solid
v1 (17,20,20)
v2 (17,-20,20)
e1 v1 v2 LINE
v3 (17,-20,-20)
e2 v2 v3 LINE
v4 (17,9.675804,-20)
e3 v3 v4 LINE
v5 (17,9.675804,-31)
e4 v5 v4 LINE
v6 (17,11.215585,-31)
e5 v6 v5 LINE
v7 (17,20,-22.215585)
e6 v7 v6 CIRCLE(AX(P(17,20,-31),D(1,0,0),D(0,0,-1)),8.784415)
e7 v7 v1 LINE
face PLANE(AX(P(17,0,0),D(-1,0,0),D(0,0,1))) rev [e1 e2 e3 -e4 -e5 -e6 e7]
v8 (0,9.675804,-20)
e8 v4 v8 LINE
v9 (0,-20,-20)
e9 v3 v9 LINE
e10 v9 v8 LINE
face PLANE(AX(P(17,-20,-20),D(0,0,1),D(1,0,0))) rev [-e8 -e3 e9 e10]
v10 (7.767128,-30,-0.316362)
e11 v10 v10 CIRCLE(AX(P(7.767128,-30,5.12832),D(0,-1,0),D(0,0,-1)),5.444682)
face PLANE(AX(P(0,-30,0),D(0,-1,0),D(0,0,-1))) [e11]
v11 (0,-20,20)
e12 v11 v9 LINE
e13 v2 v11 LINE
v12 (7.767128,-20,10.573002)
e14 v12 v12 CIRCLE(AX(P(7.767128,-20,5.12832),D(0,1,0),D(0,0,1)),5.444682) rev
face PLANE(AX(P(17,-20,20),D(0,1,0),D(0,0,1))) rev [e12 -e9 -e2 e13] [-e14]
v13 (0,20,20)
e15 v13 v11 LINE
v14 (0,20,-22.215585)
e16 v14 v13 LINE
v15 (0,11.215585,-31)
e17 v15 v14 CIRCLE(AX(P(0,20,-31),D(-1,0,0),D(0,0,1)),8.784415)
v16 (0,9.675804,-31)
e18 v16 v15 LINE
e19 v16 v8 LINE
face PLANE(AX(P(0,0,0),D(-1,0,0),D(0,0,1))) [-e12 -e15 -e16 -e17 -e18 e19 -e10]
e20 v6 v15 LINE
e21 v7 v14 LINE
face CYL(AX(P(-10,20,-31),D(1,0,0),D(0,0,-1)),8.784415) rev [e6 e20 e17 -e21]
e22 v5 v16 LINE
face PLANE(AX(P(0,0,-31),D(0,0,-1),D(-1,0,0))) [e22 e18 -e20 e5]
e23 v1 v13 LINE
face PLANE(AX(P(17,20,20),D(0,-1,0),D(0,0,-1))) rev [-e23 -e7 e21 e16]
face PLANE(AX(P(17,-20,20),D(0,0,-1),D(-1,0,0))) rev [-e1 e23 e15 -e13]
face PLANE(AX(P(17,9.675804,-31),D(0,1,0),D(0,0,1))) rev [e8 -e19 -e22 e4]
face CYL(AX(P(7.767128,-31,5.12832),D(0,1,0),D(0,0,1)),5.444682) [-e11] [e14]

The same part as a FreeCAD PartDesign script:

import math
import FreeCAD as App
import Part
import Sketcher

V = App.Vector
Q = App.Units.Quantity

doc = App.newDocument("Part")
body = doc.addObject("PartDesign::Body", "Body")

sketch1 = doc.addObject("Sketcher::SketchObject", "Sketch")
body.addObject(sketch1)
sketch1.AttachmentSupport = (doc.YZ_Plane, [""])
sketch1.MapMode = "FlatFace"
sketch1.addGeometry(Part.LineSegment(V(20, 20, 0), V(-20, 20, 0)), False)
sketch1.addGeometry(Part.LineSegment(V(-20, 20, 0), V(-20, -20, 0)), False)
sketch1.addGeometry(Part.LineSegment(V(-20, -20, 0), V(20, -20, 0)), False)
sketch1.addGeometry(Part.LineSegment(V(20, -20, 0), V(20, 20, 0)), False)
sketch1.addConstraint(Sketcher.Constraint("Coincident", 0, 2, 1, 1))
sketch1.addConstraint(Sketcher.Constraint("Coincident", 1, 2, 2, 1))
sketch1.addConstraint(Sketcher.Constraint("Coincident", 2, 2, 3, 1))
sketch1.addConstraint(Sketcher.Constraint("Coincident", 3, 2, 0, 1))
sketch1.addConstraint(Sketcher.Constraint("Horizontal", 0))
sketch1.addConstraint(Sketcher.Constraint("Vertical", 1))
sketch1.addConstraint(Sketcher.Constraint("Horizontal", 2))
sketch1.addConstraint(Sketcher.Constraint("Vertical", 3))
sketch1.addConstraint(Sketcher.Constraint("Symmetric", 0, 2, 2, 2, -1, 1))
sketch1.addConstraint(Sketcher.Constraint("Equal", 2, 1))
sketch1.addConstraint(Sketcher.Constraint("DistanceX", 0, 2, 0, 1, Q("40 mm")))
pad1 = doc.addObject("PartDesign::Pad", "Pad")
body.addObject(pad1)
pad1.Profile = sketch1
pad1.Length = 17

sketch2 = doc.addObject("Sketcher::SketchObject", "Sketch001")
body.addObject(sketch2)
sketch2.AttachmentSupport = (doc.YZ_Plane, [""])
sketch2.MapMode = "FlatFace"
sketch2.AttachmentOffset = App.Placement(V(0, 0, 17), App.Rotation())
sketch2.addGeometry(Part.LineSegment(V(20, 20, 0), V(-20, 20, 0)), False)
sketch2.addGeometry(Part.LineSegment(V(-20, 20, 0), V(-20, -20, 0)), False)
sketch2.addGeometry(Part.LineSegment(V(-20, -20, 0), V(20, -20, 0)), False)
sketch2.addGeometry(Part.LineSegment(V(20, -20, 0), V(20, 20, 0)), False)
sketch2.addConstraint(Sketcher.Constraint("Coincident", 0, 2, 1, 1))
sketch2.addConstraint(Sketcher.Constraint("Coincident", 1, 2, 2, 1))
sketch2.addConstraint(Sketcher.Constraint("Coincident", 2, 2, 3, 1))
sketch2.addConstraint(Sketcher.Constraint("Coincident", 3, 2, 0, 1))
sketch2.addConstraint(Sketcher.Constraint("Horizontal", 0))
sketch2.addConstraint(Sketcher.Constraint("Vertical", 1))
sketch2.addConstraint(Sketcher.Constraint("Horizontal", 2))
sketch2.addConstraint(Sketcher.Constraint("Vertical", 3))
sketch2.addConstraint(Sketcher.Constraint("Symmetric", 0, 2, 2, 2, -1, 1))
sketch2.addConstraint(Sketcher.Constraint("Equal", 2, 1))
sketch2.addConstraint(Sketcher.Constraint("DistanceX", 0, 2, 0, 1, Q("39 mm")))
pad2 = doc.addObject("PartDesign::Pad", "Pad001")
body.addObject(pad2)
pad2.Profile = sketch2
pad2.Length = 11

sketch3 = doc.addObject("Sketcher::SketchObject", "Sketch002")
body.addObject(sketch3)
sketch3.AttachmentSupport = (doc.YZ_Plane, [""])
sketch3.MapMode = "FlatFace"
sketch3.AttachmentOffset = App.Placement(V(0, 0, 28), App.Rotation())
sketch3.addGeometry(Part.LineSegment(V(19.5, 17, 0), V(-19.5, 17, 0)), False)
sketch3.addGeometry(Part.LineSegment(V(-19.5, 17, 0), V(-19.5, 15, 0)), False)
sketch3.addGeometry(Part.LineSegment(V(-19.5, 15, 0), V(19.5, 15, 0)), False)
sketch3.addGeometry(Part.LineSegment(V(19.5, 15, 0), V(19.5, 17, 0)), False)
sketch3.addGeometry(Part.LineSegment(V(19.5, 13, 0), V(-19.5, 13, 0)), False)
sketch3.addGeometry(Part.LineSegment(V(-19.5, 13, 0), V(-19.5, 11, 0)), False)
sketch3.addGeometry(Part.LineSegment(V(-19.5, 11, 0), V(19.5, 11, 0)), False)
sketch3.addGeometry(Part.LineSegment(V(19.5, 11, 0), V(19.5, 13, 0)), False)
sketch3.addGeometry(Part.LineSegment(V(19.5, 9, 0), V(-19.5, 9, 0)), False)
sketch3.addGeometry(Part.LineSegment(V(-19.5, 9, 0), V(-19.5, 7, 0)), False)
sketch3.addGeometry(Part.LineSegment(V(-19.5, 7, 0), V(19.5, 7, 0)), False)
sketch3.addGeometry(Part.LineSegment(V(19.5, 7, 0), V(19.5, 9, 0)), False)
sketch3.addGeometry(Part.LineSegment(V(19.5, 5, 0), V(-19.5, 5, 0)), False)
sketch3.addGeometry(Part.LineSegment(V(-19.5, 5, 0), V(-19.5, 3, 0)), False)
sketch3.addGeometry(Part.LineSegment(V(-19.5, 3, 0), V(19.5, 3, 0)), False)
sketch3.addGeometry(Part.LineSegment(V(19.5, 3, 0), V(19.5, 5, 0)), False)
sketch3.addGeometry(Part.LineSegment(V(19.5, 1, 0), V(-19.5, 1, 0)), False)
sketch3.addGeometry(Part.LineSegment(V(-19.5, 1, 0), V(-19.5, -1, 0)), False)
sketch3.addGeometry(Part.LineSegment(V(-19.5, -1, 0), V(19.5, -1, 0)), False)
sketch3.addGeometry(Part.LineSegment(V(19.5, -1, 0), V(19.5, 1, 0)), False)
sketch3.addGeometry(Part.LineSegment(V(19.5, -3, 0), V(-19.5, -3, 0)), False)
sketch3.addGeometry(Part.LineSegment(V(-19.5, -3, 0), V(-19.5, -5, 0)), False)
sketch3.addGeometry(Part.LineSegment(V(-19.5, -5, 0), V(19.5, -5, 0)), False)
sketch3.addGeometry(Part.LineSegment(V(19.5, -5, 0), V(19.5, -3, 0)), False)
sketch3.addGeometry(Part.LineSegment(V(19.5, -7, 0), V(-19.5, -7, 0)), False)
sketch3.addGeometry(Part.LineSegment(V(-19.5, -7, 0), V(-19.5, -9, 0)), False)
sketch3.addGeometry(Part.LineSegment(V(-19.5, -9, 0), V(19.5, -9, 0)), False)
sketch3.addGeometry(Part.LineSegment(V(19.5, -9, 0), V(19.5, -7, 0)), False)
sketch3.addGeometry(Part.LineSegment(V(19.5, -11, 0), V(-19.5, -11, 0)), False)
sketch3.addGeometry(Part.LineSegment(V(-19.5, -11, 0), V(-19.5, -13, 0)), False)
sketch3.addGeometry(Part.LineSegment(V(-19.5, -13, 0), V(19.5, -13, 0)), False)
sketch3.addGeometry(Part.LineSegment(V(19.5, -13, 0), V(19.5, -11, 0)), False)
sketch3.addGeometry(Part.LineSegment(V(19.5, -15, 0), V(-19.5, -15, 0)), False)
sketch3.addGeometry(Part.LineSegment(V(-19.5, -15, 0), V(-19.5, -17, 0)), False)
sketch3.addGeometry(Part.LineSegment(V(-19.5, -17, 0), V(19.5, -17, 0)), False)
sketch3.addGeometry(Part.LineSegment(V(19.5, -17, 0), V(19.5, -15, 0)), False)
sketch3.addConstraint(Sketcher.Constraint("Coincident", 0, 2, 1, 1))
sketch3.addConstraint(Sketcher.Constraint("Coincident", 1, 2, 2, 1))
sketch3.addConstraint(Sketcher.Constraint("Coincident", 2, 2, 3, 1))
sketch3.addConstraint(Sketcher.Constraint("Coincident", 3, 2, 0, 1))
sketch3.addConstraint(Sketcher.Constraint("Coincident", 4, 2, 5, 1))
sketch3.addConstraint(Sketcher.Constraint("Coincident", 5, 2, 6, 1))
sketch3.addConstraint(Sketcher.Constraint("Coincident", 6, 2, 7, 1))
sketch3.addConstraint(Sketcher.Constraint("Coincident", 7, 2, 4, 1))
sketch3.addConstraint(Sketcher.Constraint("Coincident", 8, 2, 9, 1))
sketch3.addConstraint(Sketcher.Constraint("Coincident", 9, 2, 10, 1))
sketch3.addConstraint(Sketcher.Constraint("Coincident", 10, 2, 11, 1))
sketch3.addConstraint(Sketcher.Constraint("Coincident", 11, 2, 8, 1))
sketch3.addConstraint(Sketcher.Constraint("Coincident", 12, 2, 13, 1))
sketch3.addConstraint(Sketcher.Constraint("Coincident", 13, 2, 14, 1))
sketch3.addConstraint(Sketcher.Constraint("Coincident", 14, 2, 15, 1))
sketch3.addConstraint(Sketcher.Constraint("Coincident", 15, 2, 12, 1))
sketch3.addConstraint(Sketcher.Constraint("Coincident", 16, 2, 17, 1))
sketch3.addConstraint(Sketcher.Constraint("Coincident", 17, 2, 18, 1))
sketch3.addConstraint(Sketcher.Constraint("Coincident", 18, 2, 19, 1))
sketch3.addConstraint(Sketcher.Constraint("Coincident", 19, 2, 16, 1))
sketch3.addConstraint(Sketcher.Constraint("Coincident", 20, 2, 21, 1))
sketch3.addConstraint(Sketcher.Constraint("Coincident", 21, 2, 22, 1))
sketch3.addConstraint(Sketcher.Constraint("Coincident", 22, 2, 23, 1))
sketch3.addConstraint(Sketcher.Constraint("Coincident", 23, 2, 20, 1))
sketch3.addConstraint(Sketcher.Constraint("Coincident", 24, 2, 25, 1))
sketch3.addConstraint(Sketcher.Constraint("Coincident", 25, 2, 26, 1))
sketch3.addConstraint(Sketcher.Constraint("Coincident", 26, 2, 27, 1))
sketch3.addConstraint(Sketcher.Constraint("Coincident", 27, 2, 24, 1))
sketch3.addConstraint(Sketcher.Constraint("Coincident", 28, 2, 29, 1))
sketch3.addConstraint(Sketcher.Constraint("Coincident", 29, 2, 30, 1))
sketch3.addConstraint(Sketcher.Constraint("Coincident", 30, 2, 31, 1))
sketch3.addConstraint(Sketcher.Constraint("Coincident", 31, 2, 28, 1))
sketch3.addConstraint(Sketcher.Constraint("Coincident", 32, 2, 33, 1))
sketch3.addConstraint(Sketcher.Constraint("Coincident", 33, 2, 34, 1))
sketch3.addConstraint(Sketcher.Constraint("Coincident", 34, 2, 35, 1))
sketch3.addConstraint(Sketcher.Constraint("Coincident", 35, 2, 32, 1))
sketch3.addConstraint(Sketcher.Constraint("Horizontal", 0))
sketch3.addConstraint(Sketcher.Constraint("Vertical", 1))
sketch3.addConstraint(Sketcher.Constraint("Horizontal", 2))
sketch3.addConstraint(Sketcher.Constraint("Vertical", 3))
sketch3.addConstraint(Sketcher.Constraint("Horizontal", 4))
sketch3.addConstraint(Sketcher.Constraint("Vertical", 5))
sketch3.addConstraint(Sketcher.Constraint("Horizontal", 6))
sketch3.addConstraint(Sketcher.Constraint("Vertical", 7))
sketch3.addConstraint(Sketcher.Constraint("Horizontal", 8))
sketch3.addConstraint(Sketcher.Constraint("Vertical", 9))
sketch3.addConstraint(Sketcher.Constraint("Horizontal", 10))
sketch3.addConstraint(Sketcher.Constraint("Vertical", 11))
sketch3.addConstraint(Sketcher.Constraint("Horizontal", 12))
sketch3.addConstraint(Sketcher.Constraint("Vertical", 13))
sketch3.addConstraint(Sketcher.Constraint("Horizontal", 14))
sketch3.addConstraint(Sketcher.Constraint("Vertical", 15))
sketch3.addConstraint(Sketcher.Constraint("Horizontal", 16))
sketch3.addConstraint(Sketcher.Constraint("Vertical", 17))
sketch3.addConstraint(Sketcher.Constraint("Horizontal", 18))
sketch3.addConstraint(Sketcher.Constraint("Vertical", 19))
sketch3.addConstraint(Sketcher.Constraint("Horizontal", 20))
sketch3.addConstraint(Sketcher.Constraint("Vertical", 21))
sketch3.addConstraint(Sketcher.Constraint("Horizontal", 22))
sketch3.addConstraint(Sketcher.Constraint("Vertical", 23))
sketch3.addConstraint(Sketcher.Constraint("Horizontal", 24))
sketch3.addConstraint(Sketcher.Constraint("Vertical", 25))
sketch3.addConstraint(Sketcher.Constraint("Horizontal", 26))
sketch3.addConstraint(Sketcher.Constraint("Vertical", 27))
sketch3.addConstraint(Sketcher.Constraint("Horizontal", 28))
sketch3.addConstraint(Sketcher.Constraint("Vertical", 29))
sketch3.addConstraint(Sketcher.Constraint("Horizontal", 30))
sketch3.addConstraint(Sketcher.Constraint("Vertical", 31))
sketch3.addConstraint(Sketcher.Constraint("Horizontal", 32))
sketch3.addConstraint(Sketcher.Constraint("Vertical", 33))
sketch3.addConstraint(Sketcher.Constraint("Horizontal", 34))
sketch3.addConstraint(Sketcher.Constraint("Vertical", 35))
sketch3.addConstraint(Sketcher.Constraint("Symmetric", 16, 2, 18, 2, -1, 1))
sketch3.addConstraint(Sketcher.Constraint("Symmetric", 14, 2, 20, 2, -1, 1))
sketch3.addConstraint(Sketcher.Constraint("Symmetric", 12, 2, 22, 2, -1, 1))
sketch3.addConstraint(Sketcher.Constraint("Symmetric", 10, 2, 24, 2, -1, 1))
sketch3.addConstraint(Sketcher.Constraint("Symmetric", 8, 2, 26, 2, -1, 1))
sketch3.addConstraint(Sketcher.Constraint("Symmetric", 6, 2, 28, 2, -1, 1))
sketch3.addConstraint(Sketcher.Constraint("Symmetric", 4, 2, 30, 2, -1, 1))
sketch3.addConstraint(Sketcher.Constraint("Symmetric", 2, 2, 32, 2, -1, 1))
sketch3.addConstraint(Sketcher.Constraint("Symmetric", 0, 2, 34, 2, -1, 1))
sketch3.addConstraint(Sketcher.Constraint("Vertical", 1, 2, 4, 2))
sketch3.addConstraint(Sketcher.Constraint("Vertical", 3, 2, 6, 2))
sketch3.addConstraint(Sketcher.Constraint("Vertical", 5, 2, 8, 2))
sketch3.addConstraint(Sketcher.Constraint("Vertical", 7, 2, 10, 2))
sketch3.addConstraint(Sketcher.Constraint("Vertical", 9, 2, 12, 2))
sketch3.addConstraint(Sketcher.Constraint("Vertical", 11, 2, 14, 2))
sketch3.addConstraint(Sketcher.Constraint("Vertical", 13, 2, 16, 2))
sketch3.addConstraint(Sketcher.Constraint("Vertical", 15, 2, 18, 2))
sketch3.addConstraint(Sketcher.Constraint("Equal", 3, 5))
sketch3.addConstraint(Sketcher.Constraint("Equal", 7, 9))
sketch3.addConstraint(Sketcher.Constraint("Equal", 11, 13))
sketch3.addConstraint(Sketcher.Constraint("Equal", 15, 17))
sketch3.addConstraint(Sketcher.Constraint("DistanceX", 0, 2, 0, 1, Q("39 mm")))
sketch3.addConstraint(Sketcher.Constraint("DistanceY", 1, 2, 1, 1, Q("2 mm")))
sketch3.addConstraint(Sketcher.Constraint("DistanceY", -1, 1, 0, 2, Q("17 mm")))
sketch3.addConstraint(Sketcher.Constraint("DistanceY", -1, 1, 4, 2, Q("13 mm")))
sketch3.addConstraint(Sketcher.Constraint("DistanceY", -1, 1, 8, 2, Q("9 mm")))
sketch3.addConstraint(Sketcher.Constraint("DistanceY", -1, 1, 12, 2, Q("5 mm")))
pocket1 = doc.addObject("PartDesign::Pocket", "Pocket")
body.addObject(pocket1)
pocket1.Profile = sketch3
pocket1.Length = 9

sketch4 = doc.addObject("Sketcher::SketchObject", "Sketch003")
body.addObject(sketch4)
sketch4.AttachmentSupport = (doc.YZ_Plane, [""])
sketch4.MapMode = "FlatFace"
sketch4.AttachmentOffset = App.Placement(V(0, 0, 28), App.Rotation())
sketch4.addGeometry(Part.LineSegment(V(19, -14, 0), V(19, 14, 0)), False)
sketch4.addGeometry(Part.ArcOfCircle(Part.Circle(V(14, 14, 0), V(0, 0, 1), 5), math.radians(0), math.radians(90)), False)
sketch4.addGeometry(Part.LineSegment(V(14, 19, 0), V(-14, 19, 0)), False)
sketch4.addGeometry(Part.ArcOfCircle(Part.Circle(V(-14, 14, 0), V(0, 0, 1), 5), math.radians(90), math.radians(180)), False)
sketch4.addGeometry(Part.LineSegment(V(-19, 14, 0), V(-19, -14, 0)), False)
sketch4.addGeometry(Part.ArcOfCircle(Part.Circle(V(-14, -14, 0), V(0, 0, 1), 5), math.radians(180), math.radians(270)), False)
sketch4.addGeometry(Part.LineSegment(V(-14, -19, 0), V(14, -19, 0)), False)
sketch4.addGeometry(Part.ArcOfCircle(Part.Circle(V(14, -14, 0), V(0, 0, 1), 5), math.radians(-90), math.radians(0)), False)
sketch4.addConstraint(Sketcher.Constraint("Tangent", 0, 2, 1, 1))
sketch4.addConstraint(Sketcher.Constraint("Tangent", 1, 2, 2, 1))
sketch4.addConstraint(Sketcher.Constraint("Tangent", 2, 2, 3, 1))
sketch4.addConstraint(Sketcher.Constraint("Tangent", 3, 2, 4, 1))
sketch4.addConstraint(Sketcher.Constraint("Tangent", 4, 2, 5, 1))
sketch4.addConstraint(Sketcher.Constraint("Tangent", 5, 2, 6, 1))
sketch4.addConstraint(Sketcher.Constraint("Tangent", 6, 2, 7, 1))
sketch4.addConstraint(Sketcher.Constraint("Tangent", 7, 2, 0, 1))
sketch4.addConstraint(Sketcher.Constraint("Vertical", 0))
sketch4.addConstraint(Sketcher.Constraint("Horizontal", 2))
sketch4.addConstraint(Sketcher.Constraint("Vertical", 4))
sketch4.addConstraint(Sketcher.Constraint("Horizontal", 6))
sketch4.addConstraint(Sketcher.Constraint("Equal", 1, 3))
sketch4.addConstraint(Sketcher.Constraint("Equal", 3, 5))
sketch4.addConstraint(Sketcher.Constraint("Equal", 5, 7))
sketch4.addConstraint(Sketcher.Constraint("Radius", 1, Q("5 mm")))
sketch4.addConstraint(Sketcher.Constraint("DistanceY", 0, 1, 0, 2, Q("27.906891 mm")))
sketch4.addConstraint(Sketcher.Constraint("DistanceX", 2, 2, 2, 1, Q("27.328426 mm")))
sketch4.addConstraint(Sketcher.Constraint("DistanceX", 3, 3, -1, 1, Q("13.794342 mm")))
sketch4.addConstraint(Sketcher.Constraint("DistanceY", -1, 1, 1, 3, Q("13.965803 mm")))
pad3 = doc.addObject("PartDesign::Pad", "Pad002")
body.addObject(pad3)
pad3.Profile = sketch4
pad3.Length = 11

sketch5 = doc.addObject("Sketcher::SketchObject", "Sketch004")
body.addObject(sketch5)
sketch5.AttachmentSupport = (doc.XZ_Plane, [""])
sketch5.MapMode = "FlatFace"
sketch5.AttachmentOffset = App.Placement(V(0, 0, 20), App.Rotation())
sketch5.addGeometry(Part.Circle(V(8, 5, 0), V(0, 0, 1), 5), False)
sketch5.addConstraint(Sketcher.Constraint("Diameter", 0, Q("10.889364 mm")))
sketch5.addConstraint(Sketcher.Constraint("DistanceX", -1, 1, 0, 3, Q("7.767128 mm")))
sketch5.addConstraint(Sketcher.Constraint("DistanceY", -1, 1, 0, 3, Q("5.12832 mm")))
pad4 = doc.addObject("PartDesign::Pad", "Pad003")
body.addObject(pad4)
pad4.Profile = sketch5
pad4.Length = 11

sketch6 = doc.addObject("Sketcher::SketchObject", "Sketch005")
body.addObject(sketch6)
sketch6.AttachmentSupport = (doc.XZ_Plane, [""])
sketch6.MapMode = "FlatFace"
sketch6.AttachmentOffset = App.Placement(V(0, 0, 31), App.Rotation())
sketch6.addGeometry(Part.LineSegment(V(-2, 14, 0), V(-2, -4, 0)), False)
sketch6.addGeometry(Part.LineSegment(V(-2, -4, 0), V(23, -4, 0)), False)
sketch6.addGeometry(Part.LineSegment(V(23, -4, 0), V(23, 14, 0)), False)
sketch6.addGeometry(Part.LineSegment(V(23, 14, 0), V(-2, 14, 0)), False)
sketch6.addConstraint(Sketcher.Constraint("Coincident", 0, 2, 1, 1))
sketch6.addConstraint(Sketcher.Constraint("Coincident", 1, 2, 2, 1))
sketch6.addConstraint(Sketcher.Constraint("Coincident", 2, 2, 3, 1))
sketch6.addConstraint(Sketcher.Constraint("Coincident", 3, 2, 0, 1))
sketch6.addConstraint(Sketcher.Constraint("Vertical", 0))
sketch6.addConstraint(Sketcher.Constraint("Horizontal", 1))
sketch6.addConstraint(Sketcher.Constraint("Vertical", 2))
sketch6.addConstraint(Sketcher.Constraint("Horizontal", 3))
sketch6.addConstraint(Sketcher.Constraint("DistanceX", 1, 1, 1, 2, Q("25 mm")))
sketch6.addConstraint(Sketcher.Constraint("DistanceY", 0, 2, 0, 1, Q("17.382728 mm")))
sketch6.addConstraint(Sketcher.Constraint("DistanceX", 0, 2, -1, 1, Q("1.83168 mm")))
sketch6.addConstraint(Sketcher.Constraint("DistanceY", -1, 1, 2, 2, Q("13.845432 mm")))
pad5 = doc.addObject("PartDesign::Pad", "Pad004")
body.addObject(pad5)
pad5.Profile = sketch6
pad5.Length = 11

sketch7 = doc.addObject("Sketcher::SketchObject", "Sketch006")
body.addObject(sketch7)
sketch7.AttachmentSupport = (doc.XZ_Plane, [""])
sketch7.MapMode = "FlatFace"
sketch7.AttachmentOffset = App.Placement(V(0, 0, 42), App.Rotation())
sketch7.addGeometry(Part.Circle(V(7.7, 5.1, 0), V(0, 0, 1), 4.5), False)
sketch7.addConstraint(Sketcher.Constraint("Diameter", 0, Q("9 mm")))
sketch7.addConstraint(Sketcher.Constraint("DistanceX", -1, 1, 0, 3, Q("7.710139 mm")))
sketch7.addConstraint(Sketcher.Constraint("DistanceY", -1, 1, 0, 3, Q("5.107456 mm")))
pad6 = doc.addObject("PartDesign::Pad", "Pad005")
body.addObject(pad6)
pad6.Profile = sketch7
pad6.Length = 11
pad6.TaperAngle = -17

sketch8 = doc.addObject("Sketcher::SketchObject", "Sketch007")
body.addObject(sketch8)
sketch8.AttachmentSupport = (doc.XY_Plane, [""])
sketch8.MapMode = "FlatFace"
sketch8.AttachmentOffset = App.Placement(V(0, 0, -20), App.Rotation())
sketch8.addGeometry(Part.LineSegment(V(17, 20, 0), V(17, 10, 0)), False)
sketch8.addGeometry(Part.LineSegment(V(17, 10, 0), V(0, 10, 0)), False)
sketch8.addGeometry(Part.LineSegment(V(0, 10, 0), V(0, 20, 0)), False)
sketch8.addGeometry(Part.LineSegment(V(0, 20, 0), V(17, 20, 0)), False)
sketch8.addConstraint(Sketcher.Constraint("Coincident", 0, 2, 1, 1))
sketch8.addConstraint(Sketcher.Constraint("Coincident", 1, 2, 2, 1))
sketch8.addConstraint(Sketcher.Constraint("Coincident", 2, 2, 3, 1))
sketch8.addConstraint(Sketcher.Constraint("Coincident", 3, 2, 0, 1))
sketch8.addConstraint(Sketcher.Constraint("Vertical", 0))
sketch8.addConstraint(Sketcher.Constraint("Horizontal", 1))
sketch8.addConstraint(Sketcher.Constraint("Vertical", 2))
sketch8.addConstraint(Sketcher.Constraint("Horizontal", 3))
sketch8.addConstraint(Sketcher.Constraint("PointOnObject", 1, 2, -2))
sketch8.addConstraint(Sketcher.Constraint("DistanceX", 1, 2, 1, 1, Q("17 mm")))
sketch8.addConstraint(Sketcher.Constraint("DistanceY", -1, 1, 2, 2, Q("20 mm")))
sketch8.addConstraint(Sketcher.Constraint("DistanceY", 0, 2, 0, 1, Q("10.324196 mm")))
pad7 = doc.addObject("PartDesign::Pad", "Pad006")
body.addObject(pad7)
pad7.Profile = sketch8
pad7.Length = 11
pad7.Reversed = True

sketch9 = doc.addObject("Sketcher::SketchObject", "Sketch008")
body.addObject(sketch9)
sketch9.AttachmentSupport = (doc.YZ_Plane, [""])
sketch9.MapMode = "FlatFace"
sketch9.AttachmentOffset = App.Placement(V(0, 0, 17), App.Rotation())
sketch9.addGeometry(Part.Circle(V(20, -31, 0), V(0, 0, 1), 9), False)
sketch9.addConstraint(Sketcher.Constraint("DistanceX", -1, 1, 0, 3, Q("20 mm")))
sketch9.addConstraint(Sketcher.Constraint("DistanceY", 0, 3, -1, 1, Q("31 mm")))
sketch9.addConstraint(Sketcher.Constraint("Diameter", 0, Q("17.56883 mm")))
pocket2 = doc.addObject("PartDesign::Pocket", "Pocket001")
body.addObject(pocket2)
pocket2.Profile = sketch9
pocket2.Length = 27

sketch10 = doc.addObject("Sketcher::SketchObject", "Sketch009")
body.addObject(sketch10)
sketch10.AttachmentSupport = (doc.XZ_Plane, [""])
sketch10.MapMode = "FlatFace"
sketch10.AttachmentOffset = App.Placement(V(0, 0, 30), App.Rotation())
sketch10.addGeometry(Part.LineSegment(V(-24, 31, 0), V(-24, -40, 0)), False)
sketch10.addGeometry(Part.LineSegment(V(-24, -40, 0), V(34, -40, 0)), False)
sketch10.addGeometry(Part.LineSegment(V(34, -40, 0), V(34, 31, 0)), False)
sketch10.addGeometry(Part.LineSegment(V(34, 31, 0), V(-24, 31, 0)), False)
sketch10.addConstraint(Sketcher.Constraint("Coincident", 0, 2, 1, 1))
sketch10.addConstraint(Sketcher.Constraint("Coincident", 1, 2, 2, 1))
sketch10.addConstraint(Sketcher.Constraint("Coincident", 2, 2, 3, 1))
sketch10.addConstraint(Sketcher.Constraint("Coincident", 3, 2, 0, 1))
sketch10.addConstraint(Sketcher.Constraint("Vertical", 0))
sketch10.addConstraint(Sketcher.Constraint("Horizontal", 1))
sketch10.addConstraint(Sketcher.Constraint("Vertical", 2))
sketch10.addConstraint(Sketcher.Constraint("Horizontal", 3))
sketch10.addConstraint(Sketcher.Constraint("DistanceX", 1, 1, 1, 2, Q("58.477636 mm")))
sketch10.addConstraint(Sketcher.Constraint("DistanceY", 0, 2, 0, 1, Q("70.793078 mm")))
sketch10.addConstraint(Sketcher.Constraint("DistanceX", -1, 1, 1, 2, Q("34.01498 mm")))
sketch10.addConstraint(Sketcher.Constraint("DistanceY", -1, 1, 2, 2, Q("31.237091 mm")))
pocket3 = doc.addObject("PartDesign::Pocket", "Pocket002")
body.addObject(pocket3)
pocket3.Profile = sketch10
pocket3.Length = 47
pocket3.Reversed = True

sketch11 = doc.addObject("Sketcher::SketchObject", "Sketch010")
body.addObject(sketch11)
sketch11.AttachmentSupport = (doc.YZ_Plane, [""])
sketch11.MapMode = "FlatFace"
sketch11.AttachmentOffset = App.Placement(V(0, 0, 39), App.Rotation())
sketch11.addGeometry(Part.LineSegment(V(47, 26, 0), V(-33, 26, 0)), False)
sketch11.addGeometry(Part.LineSegment(V(-33, 26, 0), V(-33, -37, 0)), False)
sketch11.addGeometry(Part.LineSegment(V(-33, -37, 0), V(47, -37, 0)), False)
sketch11.addGeometry(Part.LineSegment(V(47, -37, 0), V(47, 26, 0)), False)
sketch11.addConstraint(Sketcher.Constraint("Coincident", 0, 2, 1, 1))
sketch11.addConstraint(Sketcher.Constraint("Coincident", 1, 2, 2, 1))
sketch11.addConstraint(Sketcher.Constraint("Coincident", 2, 2, 3, 1))
sketch11.addConstraint(Sketcher.Constraint("Coincident", 3, 2, 0, 1))
sketch11.addConstraint(Sketcher.Constraint("Horizontal", 0))
sketch11.addConstraint(Sketcher.Constraint("Vertical", 1))
sketch11.addConstraint(Sketcher.Constraint("Horizontal", 2))
sketch11.addConstraint(Sketcher.Constraint("Vertical", 3))
sketch11.addConstraint(Sketcher.Constraint("DistanceX", 0, 2, 0, 1, Q("80.218393 mm")))
sketch11.addConstraint(Sketcher.Constraint("DistanceY", 1, 2, 1, 1, Q("62.750592 mm")))
sketch11.addConstraint(Sketcher.Constraint("DistanceY", -1, 1, 0, 2, Q("25.80651 mm")))
sketch11.addConstraint(Sketcher.Constraint("DistanceX", -1, 1, 2, 2, Q("46.77613 mm")))
pocket4 = doc.addObject("PartDesign::Pocket", "Pocket003")
body.addObject(pocket4)
pocket4.Profile = sketch11
pocket4.Length = 22

doc.recompute()
